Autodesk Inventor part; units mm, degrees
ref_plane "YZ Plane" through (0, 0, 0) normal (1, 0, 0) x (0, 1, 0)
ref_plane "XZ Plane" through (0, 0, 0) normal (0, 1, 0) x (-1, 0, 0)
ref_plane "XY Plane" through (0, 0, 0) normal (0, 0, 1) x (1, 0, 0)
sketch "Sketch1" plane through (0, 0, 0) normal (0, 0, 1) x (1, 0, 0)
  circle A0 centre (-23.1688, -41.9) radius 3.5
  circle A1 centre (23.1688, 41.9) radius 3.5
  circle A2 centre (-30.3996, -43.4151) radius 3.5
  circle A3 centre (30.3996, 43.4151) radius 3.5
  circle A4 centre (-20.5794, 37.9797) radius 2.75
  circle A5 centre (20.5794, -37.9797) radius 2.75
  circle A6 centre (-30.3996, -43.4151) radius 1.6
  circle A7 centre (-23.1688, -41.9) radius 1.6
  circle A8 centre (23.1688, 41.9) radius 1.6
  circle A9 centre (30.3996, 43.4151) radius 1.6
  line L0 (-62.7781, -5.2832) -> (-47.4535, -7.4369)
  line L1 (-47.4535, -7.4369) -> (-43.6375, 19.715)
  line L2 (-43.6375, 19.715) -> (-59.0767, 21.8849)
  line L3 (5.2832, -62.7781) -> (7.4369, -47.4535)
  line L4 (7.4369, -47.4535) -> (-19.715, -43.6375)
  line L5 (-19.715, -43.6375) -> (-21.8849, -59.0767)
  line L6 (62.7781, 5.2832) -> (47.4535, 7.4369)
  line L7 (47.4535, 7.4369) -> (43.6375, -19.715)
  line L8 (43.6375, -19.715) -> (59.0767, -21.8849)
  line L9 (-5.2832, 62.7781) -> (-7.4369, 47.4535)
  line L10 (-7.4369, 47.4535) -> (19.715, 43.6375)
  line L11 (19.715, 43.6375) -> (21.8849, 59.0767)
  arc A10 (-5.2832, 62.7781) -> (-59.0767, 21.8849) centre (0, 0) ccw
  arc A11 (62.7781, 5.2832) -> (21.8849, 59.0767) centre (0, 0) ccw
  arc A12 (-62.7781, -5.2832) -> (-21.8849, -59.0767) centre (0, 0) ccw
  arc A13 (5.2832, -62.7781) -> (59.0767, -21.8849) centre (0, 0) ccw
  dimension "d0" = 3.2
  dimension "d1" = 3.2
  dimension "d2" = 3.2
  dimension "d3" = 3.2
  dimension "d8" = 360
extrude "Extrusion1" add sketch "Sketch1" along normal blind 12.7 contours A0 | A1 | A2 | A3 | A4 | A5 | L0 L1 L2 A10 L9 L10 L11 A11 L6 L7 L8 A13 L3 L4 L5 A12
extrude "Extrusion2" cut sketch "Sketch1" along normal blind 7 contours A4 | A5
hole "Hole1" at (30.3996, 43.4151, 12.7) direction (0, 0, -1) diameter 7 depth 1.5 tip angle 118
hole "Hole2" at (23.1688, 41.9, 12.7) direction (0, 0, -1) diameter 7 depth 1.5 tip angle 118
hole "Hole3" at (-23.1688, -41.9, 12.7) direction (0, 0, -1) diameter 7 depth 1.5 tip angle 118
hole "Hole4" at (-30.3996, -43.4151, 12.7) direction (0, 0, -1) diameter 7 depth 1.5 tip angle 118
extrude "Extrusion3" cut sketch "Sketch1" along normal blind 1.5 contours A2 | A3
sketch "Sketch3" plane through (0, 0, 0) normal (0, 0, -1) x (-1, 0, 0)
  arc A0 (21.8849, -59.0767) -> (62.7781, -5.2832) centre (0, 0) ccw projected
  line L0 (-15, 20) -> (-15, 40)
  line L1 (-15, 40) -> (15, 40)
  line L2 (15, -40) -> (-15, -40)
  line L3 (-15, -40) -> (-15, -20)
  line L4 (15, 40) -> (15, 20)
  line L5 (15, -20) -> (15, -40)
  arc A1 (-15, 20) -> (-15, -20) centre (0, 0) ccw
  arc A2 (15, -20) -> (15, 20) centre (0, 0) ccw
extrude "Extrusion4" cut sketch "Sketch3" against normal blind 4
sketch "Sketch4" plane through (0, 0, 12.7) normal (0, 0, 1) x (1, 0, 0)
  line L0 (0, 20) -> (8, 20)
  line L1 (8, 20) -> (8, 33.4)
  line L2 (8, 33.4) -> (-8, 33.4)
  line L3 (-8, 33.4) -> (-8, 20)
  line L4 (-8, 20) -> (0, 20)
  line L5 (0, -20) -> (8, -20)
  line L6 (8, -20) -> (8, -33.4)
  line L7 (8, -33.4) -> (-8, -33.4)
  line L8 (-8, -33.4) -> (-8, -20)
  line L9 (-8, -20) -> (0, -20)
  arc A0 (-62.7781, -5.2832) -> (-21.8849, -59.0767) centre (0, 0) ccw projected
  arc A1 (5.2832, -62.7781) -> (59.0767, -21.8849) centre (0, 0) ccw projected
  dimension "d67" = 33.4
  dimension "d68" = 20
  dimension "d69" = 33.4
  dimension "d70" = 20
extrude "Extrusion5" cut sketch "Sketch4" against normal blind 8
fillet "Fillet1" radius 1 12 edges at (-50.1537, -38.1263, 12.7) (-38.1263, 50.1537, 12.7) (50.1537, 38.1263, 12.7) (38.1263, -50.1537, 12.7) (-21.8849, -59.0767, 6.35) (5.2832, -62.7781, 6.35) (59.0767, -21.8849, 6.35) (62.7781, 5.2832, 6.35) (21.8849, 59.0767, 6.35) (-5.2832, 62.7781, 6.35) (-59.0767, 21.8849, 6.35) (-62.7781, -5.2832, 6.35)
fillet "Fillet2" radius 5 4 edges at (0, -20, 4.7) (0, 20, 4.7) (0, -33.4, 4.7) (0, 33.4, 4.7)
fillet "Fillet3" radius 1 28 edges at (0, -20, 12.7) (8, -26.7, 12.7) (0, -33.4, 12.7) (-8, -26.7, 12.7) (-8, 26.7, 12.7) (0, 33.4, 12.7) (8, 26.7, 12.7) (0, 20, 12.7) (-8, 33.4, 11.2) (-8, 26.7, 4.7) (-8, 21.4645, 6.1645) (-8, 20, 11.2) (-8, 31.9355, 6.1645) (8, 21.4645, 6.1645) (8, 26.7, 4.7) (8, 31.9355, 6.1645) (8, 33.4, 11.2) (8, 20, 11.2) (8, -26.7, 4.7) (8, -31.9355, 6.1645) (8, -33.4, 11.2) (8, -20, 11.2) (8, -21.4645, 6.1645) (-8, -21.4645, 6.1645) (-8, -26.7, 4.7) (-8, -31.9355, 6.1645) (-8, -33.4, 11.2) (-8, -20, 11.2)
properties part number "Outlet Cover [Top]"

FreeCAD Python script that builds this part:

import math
import FreeCAD as App
import Part
import Sketcher

V = App.Vector
Q = App.Units.Quantity


def edges_at(feature, points):
    """Names of the edges that pass closest to the given points."""
    edges = feature.Shape.Edges
    near = lambda p: min(range(len(edges)), key=lambda i: edges[i].distToShape(Part.Vertex(*p))[0])
    return sorted({f"Edge{near(p) + 1}" for p in points})

doc = App.newDocument("Part")
body = doc.addObject("PartDesign::Body", "Body")

# Sketch on XY plane
sketch1 = body.newObject("Sketcher::SketchObject", "Sketch")
sketch1.AttachmentSupport = (doc.getObject("XY_Plane"), [""])
sketch1.MapMode = "FlatFace"
sketch1.addGeometry(Part.LineSegment(V(-47.5, -7.4, 0), V(-62.8, -5.3, 0)), False)
sketch1.addGeometry(Part.ArcOfCircle(Part.Circle(V(0, 0, 0), V(0, 0, 1), 63), math.radians(-175), math.radians(-110)), False)
sketch1.addGeometry(Part.LineSegment(V(-21.9, -59.1, 0), V(-19.7, -43.6, 0)), False)
sketch1.addGeometry(Part.LineSegment(V(-19.7, -43.6, 0), V(7.4, -47.5, 0)), False)
sketch1.addGeometry(Part.LineSegment(V(7.4, -47.5, 0), V(5.3, -62.8, 0)), False)
sketch1.addGeometry(Part.ArcOfCircle(Part.Circle(V(0, 0, 0), V(0, 0, 1), 63), math.radians(-85), math.radians(-20)), False)
sketch1.addGeometry(Part.LineSegment(V(59.1, -21.9, 0), V(43.6, -19.7, 0)), False)
sketch1.addGeometry(Part.LineSegment(V(43.6, -19.7, 0), V(47.5, 7.4, 0)), False)
sketch1.addGeometry(Part.LineSegment(V(47.5, 7.4, 0), V(62.8, 5.3, 0)), False)
sketch1.addGeometry(Part.ArcOfCircle(Part.Circle(V(0, 0, 0), V(0, 0, 1), 63), math.radians(5), math.radians(70)), False)
sketch1.addGeometry(Part.LineSegment(V(21.9, 59.1, 0), V(19.7, 43.6, 0)), False)
sketch1.addGeometry(Part.LineSegment(V(19.7, 43.6, 0), V(-7.4, 47.5, 0)), False)
sketch1.addGeometry(Part.LineSegment(V(-7.4, 47.5, 0), V(-5.3, 62.8, 0)), False)
sketch1.addGeometry(Part.ArcOfCircle(Part.Circle(V(0, 0, 0), V(0, 0, 1), 63), math.radians(95), math.radians(160)), False)
sketch1.addGeometry(Part.LineSegment(V(-59.1, 21.9, 0), V(-43.6, 19.7, 0)), False)
sketch1.addGeometry(Part.LineSegment(V(-43.6, 19.7, 0), V(-47.5, -7.4, 0)), False)
sketch1.addGeometry(Part.Circle(V(-23.2, -41.9, 0), V(0, 0, 1), 1.6), False)
sketch1.addGeometry(Part.Circle(V(-30.4, -43.4, 0), V(0, 0, 1), 1.6), False)
sketch1.addGeometry(Part.Circle(V(30.4, 43.4, 0), V(0, 0, 1), 1.6), False)
sketch1.addGeometry(Part.Circle(V(23.2, 41.9, 0), V(0, 0, 1), 1.6), False)
sketch1.addConstraint(Sketcher.Constraint("Coincident", 0, 2, 1, 1))
sketch1.addConstraint(Sketcher.Constraint("Coincident", 1, 2, 2, 1))
sketch1.addConstraint(Sketcher.Constraint("Coincident", 2, 2, 3, 1))
sketch1.addConstraint(Sketcher.Constraint("Coincident", 3, 2, 4, 1))
sketch1.addConstraint(Sketcher.Constraint("Coincident", 4, 2, 5, 1))
sketch1.addConstraint(Sketcher.Constraint("Coincident", 5, 2, 6, 1))
sketch1.addConstraint(Sketcher.Constraint("Coincident", 6, 2, 7, 1))
sketch1.addConstraint(Sketcher.Constraint("Coincident", 7, 2, 8, 1))
sketch1.addConstraint(Sketcher.Constraint("Coincident", 8, 2, 9, 1))
sketch1.addConstraint(Sketcher.Constraint("Coincident", 9, 2, 10, 1))
sketch1.addConstraint(Sketcher.Constraint("Coincident", 10, 2, 11, 1))
sketch1.addConstraint(Sketcher.Constraint("Coincident", 11, 2, 12, 1))
sketch1.addConstraint(Sketcher.Constraint("Coincident", 12, 2, 13, 1))
sketch1.addConstraint(Sketcher.Constraint("Coincident", 13, 2, 14, 1))
sketch1.addConstraint(Sketcher.Constraint("Coincident", 14, 2, 15, 1))
sketch1.addConstraint(Sketcher.Constraint("Coincident", 15, 2, 0, 1))
sketch1.addConstraint(Sketcher.Constraint("Coincident", 1, 3, -1, 1))
sketch1.addConstraint(Sketcher.Constraint("Coincident", 5, 3, -1, 1))
sketch1.addConstraint(Sketcher.Constraint("Coincident", 9, 3, -1, 1))
sketch1.addConstraint(Sketcher.Constraint("Coincident", 13, 3, -1, 1))
sketch1.addConstraint(Sketcher.Constraint("Equal", 1, 5))
sketch1.addConstraint(Sketcher.Constraint("Equal", 5, 9))
sketch1.addConstraint(Sketcher.Constraint("Equal", 9, 13))
sketch1.addConstraint(Sketcher.Constraint("Equal", 16, 17))
sketch1.addConstraint(Sketcher.Constraint("Equal", 17, 18))
sketch1.addConstraint(Sketcher.Constraint("Equal", 18, 19))
sketch1.addConstraint(Sketcher.Constraint("Symmetric", 17, 3, 18, 3, -1, 1))
sketch1.addConstraint(Sketcher.Constraint("Symmetric", 16, 3, 19, 3, -1, 1))
sketch1.addConstraint(Sketcher.Constraint("Symmetric", 2, 2, 10, 2, -1, 1))
sketch1.addConstraint(Sketcher.Constraint("Symmetric", 3, 2, 11, 2, -1, 1))
sketch1.addConstraint(Sketcher.Constraint("Symmetric", 6, 2, 14, 2, -1, 1))
sketch1.addConstraint(Sketcher.Constraint("Symmetric", 7, 2, 15, 2, -1, 1))
sketch1.addConstraint(Sketcher.Constraint("Perpendicular", 0, 2))
sketch1.addConstraint(Sketcher.Constraint("Perpendicular", 2, 3))
sketch1.addConstraint(Sketcher.Constraint("Perpendicular", 3, 4))
sketch1.addConstraint(Sketcher.Constraint("Perpendicular", 4, 6))
sketch1.addConstraint(Sketcher.Constraint("Perpendicular", 6, 7))
sketch1.addConstraint(Sketcher.Constraint("Perpendicular", 7, 8))
sketch1.addConstraint(Sketcher.Constraint("Perpendicular", 8, 10))
sketch1.addConstraint(Sketcher.Constraint("Perpendicular", 11, 12))
sketch1.addConstraint(Sketcher.Constraint("Perpendicular", 12, 14))
sketch1.addConstraint(Sketcher.Constraint("Equal", 0, 4))
sketch1.addConstraint(Sketcher.Constraint("Equal", 2, 6))
sketch1.addConstraint(Sketcher.Constraint("Equal", 3, 7))
sketch1.addConstraint(Sketcher.Constraint("Diameter", 16, Q("3.2 mm")))
sketch1.addConstraint(Sketcher.Constraint("Radius", 1, Q("63 mm")))
sketch1.addConstraint(Sketcher.Constraint("Angle", 0, Q("172 deg")))
sketch1.addConstraint(Sketcher.Constraint("DistanceY", 16, 3, -1, 1, Q("41.9 mm")))
sketch1.addConstraint(Sketcher.Constraint("Distance", 2, Q("15.591 mm")))
sketch1.addConstraint(Sketcher.Constraint("DistanceY", 17, 3, -1, 1, Q("43.415 mm")))
sketch1.addConstraint(Sketcher.Constraint("DistanceX", 0, 2, -1, 1, Q("62.778 mm")))
sketch1.addConstraint(Sketcher.Constraint("DistanceX", 1, 2, -1, 1, Q("21.885 mm")))
sketch1.addConstraint(Sketcher.Constraint("DistanceX", 16, 3, 1, 2, Q("1.284 mm")))
sketch1.addConstraint(Sketcher.Constraint("DistanceX", 18, 3, 7, 2, Q("17.054 mm")))
pad1 = body.newObject("PartDesign::Pad", "Pad")
pad1.Profile = sketch1
pad1.Length = 12.7

# Sketch on XY plane
sketch2 = body.newObject("Sketcher::SketchObject", "Sketch001")
sketch2.AttachmentSupport = (doc.getObject("XY_Plane"), [""])
sketch2.MapMode = "FlatFace"
sketch2.addGeometry(Part.Circle(V(-20.6, 38, 0), V(0, 0, 1), 2.8), False)
sketch2.addGeometry(Part.Circle(V(20.6, -38, 0), V(0, 0, 1), 2.8), False)
sketch2.addConstraint(Sketcher.Constraint("Equal", 0, 1))
sketch2.addConstraint(Sketcher.Constraint("Symmetric", 0, 3, 1, 3, -1, 1))
sketch2.addConstraint(Sketcher.Constraint("Diameter", 0, Q("5.5 mm")))
sketch2.addConstraint(Sketcher.Constraint("DistanceX", 0, 3, -1, 1, Q("20.5794 mm")))
sketch2.addConstraint(Sketcher.Constraint("DistanceY", -1, 1, 0, 3, Q("37.9797 mm")))
pocket1 = body.newObject("PartDesign::Pocket", "Pocket")
pocket1.Profile = sketch2
pocket1.Length = 7
pocket1.Reversed = True

# Sketch on XY plane
sketch3 = body.newObject("Sketcher::SketchObject", "Sketch002")
sketch3.AttachmentSupport = (doc.getObject("XY_Plane"), [""])
sketch3.MapMode = "FlatFace"
sketch3.AttachmentOffset = App.Placement(V(0, 0, 12.7), App.Rotation())
sketch3.addGeometry(Part.Circle(V(30.4, 43.4, 0), V(0, 0, 1), 3.5), False)
sketch3.addConstraint(Sketcher.Constraint("Diameter", 0, Q("7 mm")))
sketch3.addConstraint(Sketcher.Constraint("DistanceY", -1, 1, 0, 3, Q("43.415 mm")))
sketch3.addConstraint(Sketcher.Constraint("DistanceX", -1, 1, 0, 3, Q("30.3996 mm")))
doc.recompute()
hole = body.newObject("PartDesign::Hole", "Hole")
hole.Profile = sketch3
hole.ThreadType = "None"
hole.Diameter = 7
hole.DepthType = "Dimension"
hole.Depth = 1.5
hole.DrillPoint = "Angled"
hole.DrillPointAngle = 118

# Sketch on XY plane
sketch4 = body.newObject("Sketcher::SketchObject", "Sketch003")
sketch4.AttachmentSupport = (doc.getObject("XY_Plane"), [""])
sketch4.MapMode = "FlatFace"
sketch4.AttachmentOffset = App.Placement(V(0, 0, 12.7), App.Rotation())
sketch4.addGeometry(Part.Circle(V(23.2, 41.9, 0), V(0, 0, 1), 3.5), False)
sketch4.addConstraint(Sketcher.Constraint("Diameter", 0, Q("7 mm")))
sketch4.addConstraint(Sketcher.Constraint("DistanceY", -1, 1, 0, 3, Q("41.9 mm")))
sketch4.addConstraint(Sketcher.Constraint("DistanceX", -1, 1, 0, 3, Q("23.1688 mm")))
doc.recompute()
hole2 = body.newObject("PartDesign::Hole", "Hole001")
hole2.Profile = sketch4
hole2.ThreadType = "None"
hole2.Diameter = 7
hole2.DepthType = "Dimension"
hole2.Depth = 1.5
hole2.DrillPoint = "Angled"
hole2.DrillPointAngle = 118

# Sketch on XY plane
sketch5 = body.newObject("Sketcher::SketchObject", "Sketch004")
sketch5.AttachmentSupport = (doc.getObject("XY_Plane"), [""])
sketch5.MapMode = "FlatFace"
sketch5.AttachmentOffset = App.Placement(V(0, 0, 12.7), App.Rotation())
sketch5.addGeometry(Part.Circle(V(-23.2, -41.9, 0), V(0, 0, 1), 3.5), False)
sketch5.addConstraint(Sketcher.Constraint("Diameter", 0, Q("7 mm")))
sketch5.addConstraint(Sketcher.Constraint("DistanceY", 0, 3, -1, 1, Q("41.9 mm")))
sketch5.addConstraint(Sketcher.Constraint("DistanceX", 0, 3, -1, 1, Q("23.1688 mm")))
doc.recompute()
hole3 = body.newObject("PartDesign::Hole", "Hole002")
hole3.Profile = sketch5
hole3.ThreadType = "None"
hole3.Diameter = 7
hole3.DepthType = "Dimension"
hole3.Depth = 1.5
hole3.DrillPoint = "Angled"
hole3.DrillPointAngle = 118

# Sketch on XY plane
sketch6 = body.newObject("Sketcher::SketchObject", "Sketch005")
sketch6.AttachmentSupport = (doc.getObject("XY_Plane"), [""])
sketch6.MapMode = "FlatFace"
sketch6.AttachmentOffset = App.Placement(V(0, 0, 12.7), App.Rotation())
sketch6.addGeometry(Part.Circle(V(-30.4, -43.4, 0), V(0, 0, 1), 3.5), False)
sketch6.addConstraint(Sketcher.Constraint("Diameter", 0, Q("7 mm")))
sketch6.addConstraint(Sketcher.Constraint("DistanceY", 0, 3, -1, 1, Q("43.415 mm")))
sketch6.addConstraint(Sketcher.Constraint("DistanceX", 0, 3, -1, 1, Q("30.3996 mm")))
doc.recompute()
hole4 = body.newObject("PartDesign::Hole", "Hole003")
hole4.Profile = sketch6
hole4.ThreadType = "None"
hole4.Diameter = 7
hole4.DepthType = "Dimension"
hole4.Depth = 1.5
hole4.DrillPoint = "Angled"
hole4.DrillPointAngle = 118

# Sketch on XY plane
sketch7 = body.newObject("Sketcher::SketchObject", "Sketch006")
sketch7.AttachmentSupport = (doc.getObject("XY_Plane"), [""])
sketch7.MapMode = "FlatFace"
sketch7.addGeometry(Part.Circle(V(-30.4, -43.4, 0), V(0, 0, 1), 3.5), False)
sketch7.addGeometry(Part.Circle(V(-30.4, -43.4, 0), V(0, 0, 1), 1.6), False)
sketch7.addGeometry(Part.Circle(V(30.4, 43.4, 0), V(0, 0, 1), 3.5), False)
sketch7.addGeometry(Part.Circle(V(30.4, 43.4, 0), V(0, 0, 1), 1.6), False)
sketch7.addConstraint(Sketcher.Constraint("Coincident", 1, 3, 0, 3))
sketch7.addConstraint(Sketcher.Constraint("Coincident", 3, 3, 2, 3))
sketch7.addConstraint(Sketcher.Constraint("Equal", 0, 2))
sketch7.addConstraint(Sketcher.Constraint("Equal", 1, 3))
sketch7.addConstraint(Sketcher.Constraint("Symmetric", 0, 3, 2, 3, -1, 1))
sketch7.addConstraint(Sketcher.Constraint("Diameter", 1, Q("3.2 mm")))
sketch7.addConstraint(Sketcher.Constraint("Diameter", 0, Q("7 mm")))
sketch7.addConstraint(Sketcher.Constraint("DistanceY", 0, 3, -1, 1, Q("43.415 mm")))
sketch7.addConstraint(Sketcher.Constraint("DistanceX", 0, 3, -1, 1, Q("30.3996 mm")))
pocket2 = body.newObject("PartDesign::Pocket", "Pocket001")
pocket2.Profile = sketch7
pocket2.Length = 1.5
pocket2.Reversed = True

# Sketch on XY plane
sketch8 = body.newObject("Sketcher::SketchObject", "Sketch007")
sketch8.AttachmentSupport = (doc.getObject("XY_Plane"), [""])
sketch8.MapMode = "FlatFace"
sketch8.addGeometry(Part.LineSegment(V(15, 40, 0), V(15, 20, 0)), False)
sketch8.addGeometry(Part.ArcOfCircle(Part.Circle(V(0, 0, 0), V(0, 0, 1), 25), math.radians(-53), math.radians(53)), False)
sketch8.addGeometry(Part.LineSegment(V(15, -20, 0), V(15, -40, 0)), False)
sketch8.addGeometry(Part.LineSegment(V(15, -40, 0), V(-15, -40, 0)), False)
sketch8.addGeometry(Part.LineSegment(V(-15, -40, 0), V(-15, -20, 0)), False)
sketch8.addGeometry(Part.ArcOfCircle(Part.Circle(V(0, 0, 0), V(0, 0, 1), 25), math.radians(127), math.radians(233)), False)
sketch8.addGeometry(Part.LineSegment(V(-15, 20, 0), V(-15, 40, 0)), False)
sketch8.addGeometry(Part.LineSegment(V(-15, 40, 0), V(15, 40, 0)), False)
sketch8.addConstraint(Sketcher.Constraint("Coincident", 0, 2, 1, 2))
sketch8.addConstraint(Sketcher.Constraint("Coincident", 1, 1, 2, 1))
sketch8.addConstraint(Sketcher.Constraint("Coincident", 2, 2, 3, 1))
sketch8.addConstraint(Sketcher.Constraint("Coincident", 3, 2, 4, 1))
sketch8.addConstraint(Sketcher.Constraint("Coincident", 4, 2, 5, 2))
sketch8.addConstraint(Sketcher.Constraint("Coincident", 5, 1, 6, 1))
sketch8.addConstraint(Sketcher.Constraint("Coincident", 6, 2, 7, 1))
sketch8.addConstraint(Sketcher.Constraint("Coincident", 7, 2, 0, 1))
sketch8.addConstraint(Sketcher.Constraint("Vertical", 0))
sketch8.addConstraint(Sketcher.Constraint("Vertical", 2))
sketch8.addConstraint(Sketcher.Constraint("Horizontal", 3))
sketch8.addConstraint(Sketcher.Constraint("Vertical", 4))
sketch8.addConstraint(Sketcher.Constraint("Vertical", 6))
sketch8.addConstraint(Sketcher.Constraint("Horizontal", 7))
sketch8.addConstraint(Sketcher.Constraint("Coincident", 1, 3, -1, 1))
sketch8.addConstraint(Sketcher.Constraint("Coincident", 5, 3, -1, 1))
sketch8.addConstraint(Sketcher.Constraint("Equal", 1, 5))
sketch8.addConstraint(Sketcher.Constraint("Symmetric", 2, 2, 6, 2, -1, 1))
sketch8.addConstraint(Sketcher.Constraint("Horizontal", 1, 1, 4, 2))
sketch8.addConstraint(Sketcher.Constraint("Horizontal", 0, 2, 5, 1))
sketch8.addConstraint(Sketcher.Constraint("Radius", 1, Q("25 mm")))
sketch8.addConstraint(Sketcher.Constraint("DistanceX", 3, 2, 3, 1, Q("30 mm")))
sketch8.addConstraint(Sketcher.Constraint("DistanceY", 0, 2, 0, 1, Q("20 mm")))
pocket3 = body.newObject("PartDesign::Pocket", "Pocket002")
pocket3.Profile = sketch8
pocket3.Length = 4
pocket3.Reversed = True

# Sketch on XY plane
sketch9 = body.newObject("Sketcher::SketchObject", "Sketch008")
sketch9.AttachmentSupport = (doc.getObject("XY_Plane"), [""])
sketch9.MapMode = "FlatFace"
sketch9.AttachmentOffset = App.Placement(V(0, 0, 12.7), App.Rotation())
sketch9.addGeometry(Part.LineSegment(V(-8, 20, 0), V(8, 20, 0)), False)
sketch9.addGeometry(Part.LineSegment(V(8, 20, 0), V(8, 33, 0)), False)
sketch9.addGeometry(Part.LineSegment(V(8, 33, 0), V(-8, 33, 0)), False)
sketch9.addGeometry(Part.LineSegment(V(-8, 33, 0), V(-8, 20, 0)), False)
sketch9.addGeometry(Part.LineSegment(V(8, -20, 0), V(-8, -20, 0)), False)
sketch9.addGeometry(Part.LineSegment(V(-8, -20, 0), V(-8, -33, 0)), False)
sketch9.addGeometry(Part.LineSegment(V(-8, -33, 0), V(8, -33, 0)), False)
sketch9.addGeometry(Part.LineSegment(V(8, -33, 0), V(8, -20, 0)), False)
sketch9.addConstraint(Sketcher.Constraint("Coincident", 0, 2, 1, 1))
sketch9.addConstraint(Sketcher.Constraint("Coincident", 1, 2, 2, 1))
sketch9.addConstraint(Sketcher.Constraint("Coincident", 2, 2, 3, 1))
sketch9.addConstraint(Sketcher.Constraint("Coincident", 3, 2, 0, 1))
sketch9.addConstraint(Sketcher.Constraint("Coincident", 4, 2, 5, 1))
sketch9.addConstraint(Sketcher.Constraint("Coincident", 5, 2, 6, 1))
sketch9.addConstraint(Sketcher.Constraint("Coincident", 6, 2, 7, 1))
sketch9.addConstraint(Sketcher.Constraint("Coincident", 7, 2, 4, 1))
sketch9.addConstraint(Sketcher.Constraint("Horizontal", 0))
sketch9.addConstraint(Sketcher.Constraint("Vertical", 1))
sketch9.addConstraint(Sketcher.Constraint("Horizontal", 2))
sketch9.addConstraint(Sketcher.Constraint("Vertical", 3))
sketch9.addConstraint(Sketcher.Constraint("Horizontal", 4))
sketch9.addConstraint(Sketcher.Constraint("Vertical", 5))
sketch9.addConstraint(Sketcher.Constraint("Horizontal", 6))
sketch9.addConstraint(Sketcher.Constraint("Vertical", 7))
sketch9.addConstraint(Sketcher.Constraint("Symmetric", 0, 2, 4, 2, -1, 1))
sketch9.addConstraint(Sketcher.Constraint("Symmetric", 2, 2, 6, 2, -1, 1))
sketch9.addConstraint(Sketcher.Constraint("Vertical", 3, 2, 4, 2))
sketch9.addConstraint(Sketcher.Constraint("DistanceY", -1, 1, 0, 2, Q("20 mm")))
sketch9.addConstraint(Sketcher.Constraint("DistanceY", -1, 1, 1, 2, Q("33.4 mm")))
sketch9.addConstraint(Sketcher.Constraint("DistanceX", 0, 1, 0, 2, Q("16 mm")))
pocket4 = body.newObject("PartDesign::Pocket", "Pocket003")
pocket4.Profile = sketch9
pocket4.Length = 8
doc.recompute()

fillet = body.newObject("PartDesign::Fillet", "Fillet")
fillet.Base = (pocket4, edges_at(pocket4, [
    (-50.154, -38.126, 12.7),
    (-38.126, 50.154, 12.7),
    (50.154, 38.126, 12.7),
    (38.126, -50.154, 12.7),
    (-21.885, -59.077, 6.35),
    (5.283, -62.778, 6.35),
    (59.077, -21.885, 6.35),
    (62.778, 5.283, 6.35),
    (21.885, 59.077, 6.35),
    (-5.283, 62.778, 6.35),
    (-59.077, 21.885, 6.35),
    (-62.778, -5.283, 6.35),
]))
fillet.Radius = 1
doc.recompute()

fillet2 = body.newObject("PartDesign::Fillet", "Fillet001")
fillet2.Base = (fillet, edges_at(fillet, [
    (0, -20, 4.7),
    (0, 20, 4.7),
    (0, -33.4, 4.7),
    (0, 33.4, 4.7),
]))
fillet2.Radius = 5
doc.recompute()

fillet3 = body.newObject("PartDesign::Fillet", "Fillet002")
fillet3.Base = (fillet2, edges_at(fillet2, [
    (0, -20, 12.7),
    (8, -26.7, 12.7),
    (0, -33.4, 12.7),
    (-8, -26.7, 12.7),
    (-8, 26.7, 12.7),
    (0, 33.4, 12.7),
    (8, 26.7, 12.7),
    (0, 20, 12.7),
    (-8, 33.4, 11.2),
    (-8, 26.7, 4.7),
    (-8, 21.465, 6.165),
    (-8, 20, 11.2),
    (-8, 31.936, 6.165),
    (8, 21.465, 6.165),
    (8, 26.7, 4.7),
    (8, 31.936, 6.165),
    (8, 33.4, 11.2),
    (8, 20, 11.2),
    (8, -26.7, 4.7),
    (8, -31.936, 6.165),
    (8, -33.4, 11.2),
    (8, -20, 11.2),
    (8, -21.465, 6.165),
    (-8, -21.465, 6.165),
    (-8, -26.7, 4.7),
    (-8, -31.936, 6.165),
    (-8, -33.4, 11.2),
    (-8, -20, 11.2),
]))
fillet3.Radius = 1

doc.recompute()
